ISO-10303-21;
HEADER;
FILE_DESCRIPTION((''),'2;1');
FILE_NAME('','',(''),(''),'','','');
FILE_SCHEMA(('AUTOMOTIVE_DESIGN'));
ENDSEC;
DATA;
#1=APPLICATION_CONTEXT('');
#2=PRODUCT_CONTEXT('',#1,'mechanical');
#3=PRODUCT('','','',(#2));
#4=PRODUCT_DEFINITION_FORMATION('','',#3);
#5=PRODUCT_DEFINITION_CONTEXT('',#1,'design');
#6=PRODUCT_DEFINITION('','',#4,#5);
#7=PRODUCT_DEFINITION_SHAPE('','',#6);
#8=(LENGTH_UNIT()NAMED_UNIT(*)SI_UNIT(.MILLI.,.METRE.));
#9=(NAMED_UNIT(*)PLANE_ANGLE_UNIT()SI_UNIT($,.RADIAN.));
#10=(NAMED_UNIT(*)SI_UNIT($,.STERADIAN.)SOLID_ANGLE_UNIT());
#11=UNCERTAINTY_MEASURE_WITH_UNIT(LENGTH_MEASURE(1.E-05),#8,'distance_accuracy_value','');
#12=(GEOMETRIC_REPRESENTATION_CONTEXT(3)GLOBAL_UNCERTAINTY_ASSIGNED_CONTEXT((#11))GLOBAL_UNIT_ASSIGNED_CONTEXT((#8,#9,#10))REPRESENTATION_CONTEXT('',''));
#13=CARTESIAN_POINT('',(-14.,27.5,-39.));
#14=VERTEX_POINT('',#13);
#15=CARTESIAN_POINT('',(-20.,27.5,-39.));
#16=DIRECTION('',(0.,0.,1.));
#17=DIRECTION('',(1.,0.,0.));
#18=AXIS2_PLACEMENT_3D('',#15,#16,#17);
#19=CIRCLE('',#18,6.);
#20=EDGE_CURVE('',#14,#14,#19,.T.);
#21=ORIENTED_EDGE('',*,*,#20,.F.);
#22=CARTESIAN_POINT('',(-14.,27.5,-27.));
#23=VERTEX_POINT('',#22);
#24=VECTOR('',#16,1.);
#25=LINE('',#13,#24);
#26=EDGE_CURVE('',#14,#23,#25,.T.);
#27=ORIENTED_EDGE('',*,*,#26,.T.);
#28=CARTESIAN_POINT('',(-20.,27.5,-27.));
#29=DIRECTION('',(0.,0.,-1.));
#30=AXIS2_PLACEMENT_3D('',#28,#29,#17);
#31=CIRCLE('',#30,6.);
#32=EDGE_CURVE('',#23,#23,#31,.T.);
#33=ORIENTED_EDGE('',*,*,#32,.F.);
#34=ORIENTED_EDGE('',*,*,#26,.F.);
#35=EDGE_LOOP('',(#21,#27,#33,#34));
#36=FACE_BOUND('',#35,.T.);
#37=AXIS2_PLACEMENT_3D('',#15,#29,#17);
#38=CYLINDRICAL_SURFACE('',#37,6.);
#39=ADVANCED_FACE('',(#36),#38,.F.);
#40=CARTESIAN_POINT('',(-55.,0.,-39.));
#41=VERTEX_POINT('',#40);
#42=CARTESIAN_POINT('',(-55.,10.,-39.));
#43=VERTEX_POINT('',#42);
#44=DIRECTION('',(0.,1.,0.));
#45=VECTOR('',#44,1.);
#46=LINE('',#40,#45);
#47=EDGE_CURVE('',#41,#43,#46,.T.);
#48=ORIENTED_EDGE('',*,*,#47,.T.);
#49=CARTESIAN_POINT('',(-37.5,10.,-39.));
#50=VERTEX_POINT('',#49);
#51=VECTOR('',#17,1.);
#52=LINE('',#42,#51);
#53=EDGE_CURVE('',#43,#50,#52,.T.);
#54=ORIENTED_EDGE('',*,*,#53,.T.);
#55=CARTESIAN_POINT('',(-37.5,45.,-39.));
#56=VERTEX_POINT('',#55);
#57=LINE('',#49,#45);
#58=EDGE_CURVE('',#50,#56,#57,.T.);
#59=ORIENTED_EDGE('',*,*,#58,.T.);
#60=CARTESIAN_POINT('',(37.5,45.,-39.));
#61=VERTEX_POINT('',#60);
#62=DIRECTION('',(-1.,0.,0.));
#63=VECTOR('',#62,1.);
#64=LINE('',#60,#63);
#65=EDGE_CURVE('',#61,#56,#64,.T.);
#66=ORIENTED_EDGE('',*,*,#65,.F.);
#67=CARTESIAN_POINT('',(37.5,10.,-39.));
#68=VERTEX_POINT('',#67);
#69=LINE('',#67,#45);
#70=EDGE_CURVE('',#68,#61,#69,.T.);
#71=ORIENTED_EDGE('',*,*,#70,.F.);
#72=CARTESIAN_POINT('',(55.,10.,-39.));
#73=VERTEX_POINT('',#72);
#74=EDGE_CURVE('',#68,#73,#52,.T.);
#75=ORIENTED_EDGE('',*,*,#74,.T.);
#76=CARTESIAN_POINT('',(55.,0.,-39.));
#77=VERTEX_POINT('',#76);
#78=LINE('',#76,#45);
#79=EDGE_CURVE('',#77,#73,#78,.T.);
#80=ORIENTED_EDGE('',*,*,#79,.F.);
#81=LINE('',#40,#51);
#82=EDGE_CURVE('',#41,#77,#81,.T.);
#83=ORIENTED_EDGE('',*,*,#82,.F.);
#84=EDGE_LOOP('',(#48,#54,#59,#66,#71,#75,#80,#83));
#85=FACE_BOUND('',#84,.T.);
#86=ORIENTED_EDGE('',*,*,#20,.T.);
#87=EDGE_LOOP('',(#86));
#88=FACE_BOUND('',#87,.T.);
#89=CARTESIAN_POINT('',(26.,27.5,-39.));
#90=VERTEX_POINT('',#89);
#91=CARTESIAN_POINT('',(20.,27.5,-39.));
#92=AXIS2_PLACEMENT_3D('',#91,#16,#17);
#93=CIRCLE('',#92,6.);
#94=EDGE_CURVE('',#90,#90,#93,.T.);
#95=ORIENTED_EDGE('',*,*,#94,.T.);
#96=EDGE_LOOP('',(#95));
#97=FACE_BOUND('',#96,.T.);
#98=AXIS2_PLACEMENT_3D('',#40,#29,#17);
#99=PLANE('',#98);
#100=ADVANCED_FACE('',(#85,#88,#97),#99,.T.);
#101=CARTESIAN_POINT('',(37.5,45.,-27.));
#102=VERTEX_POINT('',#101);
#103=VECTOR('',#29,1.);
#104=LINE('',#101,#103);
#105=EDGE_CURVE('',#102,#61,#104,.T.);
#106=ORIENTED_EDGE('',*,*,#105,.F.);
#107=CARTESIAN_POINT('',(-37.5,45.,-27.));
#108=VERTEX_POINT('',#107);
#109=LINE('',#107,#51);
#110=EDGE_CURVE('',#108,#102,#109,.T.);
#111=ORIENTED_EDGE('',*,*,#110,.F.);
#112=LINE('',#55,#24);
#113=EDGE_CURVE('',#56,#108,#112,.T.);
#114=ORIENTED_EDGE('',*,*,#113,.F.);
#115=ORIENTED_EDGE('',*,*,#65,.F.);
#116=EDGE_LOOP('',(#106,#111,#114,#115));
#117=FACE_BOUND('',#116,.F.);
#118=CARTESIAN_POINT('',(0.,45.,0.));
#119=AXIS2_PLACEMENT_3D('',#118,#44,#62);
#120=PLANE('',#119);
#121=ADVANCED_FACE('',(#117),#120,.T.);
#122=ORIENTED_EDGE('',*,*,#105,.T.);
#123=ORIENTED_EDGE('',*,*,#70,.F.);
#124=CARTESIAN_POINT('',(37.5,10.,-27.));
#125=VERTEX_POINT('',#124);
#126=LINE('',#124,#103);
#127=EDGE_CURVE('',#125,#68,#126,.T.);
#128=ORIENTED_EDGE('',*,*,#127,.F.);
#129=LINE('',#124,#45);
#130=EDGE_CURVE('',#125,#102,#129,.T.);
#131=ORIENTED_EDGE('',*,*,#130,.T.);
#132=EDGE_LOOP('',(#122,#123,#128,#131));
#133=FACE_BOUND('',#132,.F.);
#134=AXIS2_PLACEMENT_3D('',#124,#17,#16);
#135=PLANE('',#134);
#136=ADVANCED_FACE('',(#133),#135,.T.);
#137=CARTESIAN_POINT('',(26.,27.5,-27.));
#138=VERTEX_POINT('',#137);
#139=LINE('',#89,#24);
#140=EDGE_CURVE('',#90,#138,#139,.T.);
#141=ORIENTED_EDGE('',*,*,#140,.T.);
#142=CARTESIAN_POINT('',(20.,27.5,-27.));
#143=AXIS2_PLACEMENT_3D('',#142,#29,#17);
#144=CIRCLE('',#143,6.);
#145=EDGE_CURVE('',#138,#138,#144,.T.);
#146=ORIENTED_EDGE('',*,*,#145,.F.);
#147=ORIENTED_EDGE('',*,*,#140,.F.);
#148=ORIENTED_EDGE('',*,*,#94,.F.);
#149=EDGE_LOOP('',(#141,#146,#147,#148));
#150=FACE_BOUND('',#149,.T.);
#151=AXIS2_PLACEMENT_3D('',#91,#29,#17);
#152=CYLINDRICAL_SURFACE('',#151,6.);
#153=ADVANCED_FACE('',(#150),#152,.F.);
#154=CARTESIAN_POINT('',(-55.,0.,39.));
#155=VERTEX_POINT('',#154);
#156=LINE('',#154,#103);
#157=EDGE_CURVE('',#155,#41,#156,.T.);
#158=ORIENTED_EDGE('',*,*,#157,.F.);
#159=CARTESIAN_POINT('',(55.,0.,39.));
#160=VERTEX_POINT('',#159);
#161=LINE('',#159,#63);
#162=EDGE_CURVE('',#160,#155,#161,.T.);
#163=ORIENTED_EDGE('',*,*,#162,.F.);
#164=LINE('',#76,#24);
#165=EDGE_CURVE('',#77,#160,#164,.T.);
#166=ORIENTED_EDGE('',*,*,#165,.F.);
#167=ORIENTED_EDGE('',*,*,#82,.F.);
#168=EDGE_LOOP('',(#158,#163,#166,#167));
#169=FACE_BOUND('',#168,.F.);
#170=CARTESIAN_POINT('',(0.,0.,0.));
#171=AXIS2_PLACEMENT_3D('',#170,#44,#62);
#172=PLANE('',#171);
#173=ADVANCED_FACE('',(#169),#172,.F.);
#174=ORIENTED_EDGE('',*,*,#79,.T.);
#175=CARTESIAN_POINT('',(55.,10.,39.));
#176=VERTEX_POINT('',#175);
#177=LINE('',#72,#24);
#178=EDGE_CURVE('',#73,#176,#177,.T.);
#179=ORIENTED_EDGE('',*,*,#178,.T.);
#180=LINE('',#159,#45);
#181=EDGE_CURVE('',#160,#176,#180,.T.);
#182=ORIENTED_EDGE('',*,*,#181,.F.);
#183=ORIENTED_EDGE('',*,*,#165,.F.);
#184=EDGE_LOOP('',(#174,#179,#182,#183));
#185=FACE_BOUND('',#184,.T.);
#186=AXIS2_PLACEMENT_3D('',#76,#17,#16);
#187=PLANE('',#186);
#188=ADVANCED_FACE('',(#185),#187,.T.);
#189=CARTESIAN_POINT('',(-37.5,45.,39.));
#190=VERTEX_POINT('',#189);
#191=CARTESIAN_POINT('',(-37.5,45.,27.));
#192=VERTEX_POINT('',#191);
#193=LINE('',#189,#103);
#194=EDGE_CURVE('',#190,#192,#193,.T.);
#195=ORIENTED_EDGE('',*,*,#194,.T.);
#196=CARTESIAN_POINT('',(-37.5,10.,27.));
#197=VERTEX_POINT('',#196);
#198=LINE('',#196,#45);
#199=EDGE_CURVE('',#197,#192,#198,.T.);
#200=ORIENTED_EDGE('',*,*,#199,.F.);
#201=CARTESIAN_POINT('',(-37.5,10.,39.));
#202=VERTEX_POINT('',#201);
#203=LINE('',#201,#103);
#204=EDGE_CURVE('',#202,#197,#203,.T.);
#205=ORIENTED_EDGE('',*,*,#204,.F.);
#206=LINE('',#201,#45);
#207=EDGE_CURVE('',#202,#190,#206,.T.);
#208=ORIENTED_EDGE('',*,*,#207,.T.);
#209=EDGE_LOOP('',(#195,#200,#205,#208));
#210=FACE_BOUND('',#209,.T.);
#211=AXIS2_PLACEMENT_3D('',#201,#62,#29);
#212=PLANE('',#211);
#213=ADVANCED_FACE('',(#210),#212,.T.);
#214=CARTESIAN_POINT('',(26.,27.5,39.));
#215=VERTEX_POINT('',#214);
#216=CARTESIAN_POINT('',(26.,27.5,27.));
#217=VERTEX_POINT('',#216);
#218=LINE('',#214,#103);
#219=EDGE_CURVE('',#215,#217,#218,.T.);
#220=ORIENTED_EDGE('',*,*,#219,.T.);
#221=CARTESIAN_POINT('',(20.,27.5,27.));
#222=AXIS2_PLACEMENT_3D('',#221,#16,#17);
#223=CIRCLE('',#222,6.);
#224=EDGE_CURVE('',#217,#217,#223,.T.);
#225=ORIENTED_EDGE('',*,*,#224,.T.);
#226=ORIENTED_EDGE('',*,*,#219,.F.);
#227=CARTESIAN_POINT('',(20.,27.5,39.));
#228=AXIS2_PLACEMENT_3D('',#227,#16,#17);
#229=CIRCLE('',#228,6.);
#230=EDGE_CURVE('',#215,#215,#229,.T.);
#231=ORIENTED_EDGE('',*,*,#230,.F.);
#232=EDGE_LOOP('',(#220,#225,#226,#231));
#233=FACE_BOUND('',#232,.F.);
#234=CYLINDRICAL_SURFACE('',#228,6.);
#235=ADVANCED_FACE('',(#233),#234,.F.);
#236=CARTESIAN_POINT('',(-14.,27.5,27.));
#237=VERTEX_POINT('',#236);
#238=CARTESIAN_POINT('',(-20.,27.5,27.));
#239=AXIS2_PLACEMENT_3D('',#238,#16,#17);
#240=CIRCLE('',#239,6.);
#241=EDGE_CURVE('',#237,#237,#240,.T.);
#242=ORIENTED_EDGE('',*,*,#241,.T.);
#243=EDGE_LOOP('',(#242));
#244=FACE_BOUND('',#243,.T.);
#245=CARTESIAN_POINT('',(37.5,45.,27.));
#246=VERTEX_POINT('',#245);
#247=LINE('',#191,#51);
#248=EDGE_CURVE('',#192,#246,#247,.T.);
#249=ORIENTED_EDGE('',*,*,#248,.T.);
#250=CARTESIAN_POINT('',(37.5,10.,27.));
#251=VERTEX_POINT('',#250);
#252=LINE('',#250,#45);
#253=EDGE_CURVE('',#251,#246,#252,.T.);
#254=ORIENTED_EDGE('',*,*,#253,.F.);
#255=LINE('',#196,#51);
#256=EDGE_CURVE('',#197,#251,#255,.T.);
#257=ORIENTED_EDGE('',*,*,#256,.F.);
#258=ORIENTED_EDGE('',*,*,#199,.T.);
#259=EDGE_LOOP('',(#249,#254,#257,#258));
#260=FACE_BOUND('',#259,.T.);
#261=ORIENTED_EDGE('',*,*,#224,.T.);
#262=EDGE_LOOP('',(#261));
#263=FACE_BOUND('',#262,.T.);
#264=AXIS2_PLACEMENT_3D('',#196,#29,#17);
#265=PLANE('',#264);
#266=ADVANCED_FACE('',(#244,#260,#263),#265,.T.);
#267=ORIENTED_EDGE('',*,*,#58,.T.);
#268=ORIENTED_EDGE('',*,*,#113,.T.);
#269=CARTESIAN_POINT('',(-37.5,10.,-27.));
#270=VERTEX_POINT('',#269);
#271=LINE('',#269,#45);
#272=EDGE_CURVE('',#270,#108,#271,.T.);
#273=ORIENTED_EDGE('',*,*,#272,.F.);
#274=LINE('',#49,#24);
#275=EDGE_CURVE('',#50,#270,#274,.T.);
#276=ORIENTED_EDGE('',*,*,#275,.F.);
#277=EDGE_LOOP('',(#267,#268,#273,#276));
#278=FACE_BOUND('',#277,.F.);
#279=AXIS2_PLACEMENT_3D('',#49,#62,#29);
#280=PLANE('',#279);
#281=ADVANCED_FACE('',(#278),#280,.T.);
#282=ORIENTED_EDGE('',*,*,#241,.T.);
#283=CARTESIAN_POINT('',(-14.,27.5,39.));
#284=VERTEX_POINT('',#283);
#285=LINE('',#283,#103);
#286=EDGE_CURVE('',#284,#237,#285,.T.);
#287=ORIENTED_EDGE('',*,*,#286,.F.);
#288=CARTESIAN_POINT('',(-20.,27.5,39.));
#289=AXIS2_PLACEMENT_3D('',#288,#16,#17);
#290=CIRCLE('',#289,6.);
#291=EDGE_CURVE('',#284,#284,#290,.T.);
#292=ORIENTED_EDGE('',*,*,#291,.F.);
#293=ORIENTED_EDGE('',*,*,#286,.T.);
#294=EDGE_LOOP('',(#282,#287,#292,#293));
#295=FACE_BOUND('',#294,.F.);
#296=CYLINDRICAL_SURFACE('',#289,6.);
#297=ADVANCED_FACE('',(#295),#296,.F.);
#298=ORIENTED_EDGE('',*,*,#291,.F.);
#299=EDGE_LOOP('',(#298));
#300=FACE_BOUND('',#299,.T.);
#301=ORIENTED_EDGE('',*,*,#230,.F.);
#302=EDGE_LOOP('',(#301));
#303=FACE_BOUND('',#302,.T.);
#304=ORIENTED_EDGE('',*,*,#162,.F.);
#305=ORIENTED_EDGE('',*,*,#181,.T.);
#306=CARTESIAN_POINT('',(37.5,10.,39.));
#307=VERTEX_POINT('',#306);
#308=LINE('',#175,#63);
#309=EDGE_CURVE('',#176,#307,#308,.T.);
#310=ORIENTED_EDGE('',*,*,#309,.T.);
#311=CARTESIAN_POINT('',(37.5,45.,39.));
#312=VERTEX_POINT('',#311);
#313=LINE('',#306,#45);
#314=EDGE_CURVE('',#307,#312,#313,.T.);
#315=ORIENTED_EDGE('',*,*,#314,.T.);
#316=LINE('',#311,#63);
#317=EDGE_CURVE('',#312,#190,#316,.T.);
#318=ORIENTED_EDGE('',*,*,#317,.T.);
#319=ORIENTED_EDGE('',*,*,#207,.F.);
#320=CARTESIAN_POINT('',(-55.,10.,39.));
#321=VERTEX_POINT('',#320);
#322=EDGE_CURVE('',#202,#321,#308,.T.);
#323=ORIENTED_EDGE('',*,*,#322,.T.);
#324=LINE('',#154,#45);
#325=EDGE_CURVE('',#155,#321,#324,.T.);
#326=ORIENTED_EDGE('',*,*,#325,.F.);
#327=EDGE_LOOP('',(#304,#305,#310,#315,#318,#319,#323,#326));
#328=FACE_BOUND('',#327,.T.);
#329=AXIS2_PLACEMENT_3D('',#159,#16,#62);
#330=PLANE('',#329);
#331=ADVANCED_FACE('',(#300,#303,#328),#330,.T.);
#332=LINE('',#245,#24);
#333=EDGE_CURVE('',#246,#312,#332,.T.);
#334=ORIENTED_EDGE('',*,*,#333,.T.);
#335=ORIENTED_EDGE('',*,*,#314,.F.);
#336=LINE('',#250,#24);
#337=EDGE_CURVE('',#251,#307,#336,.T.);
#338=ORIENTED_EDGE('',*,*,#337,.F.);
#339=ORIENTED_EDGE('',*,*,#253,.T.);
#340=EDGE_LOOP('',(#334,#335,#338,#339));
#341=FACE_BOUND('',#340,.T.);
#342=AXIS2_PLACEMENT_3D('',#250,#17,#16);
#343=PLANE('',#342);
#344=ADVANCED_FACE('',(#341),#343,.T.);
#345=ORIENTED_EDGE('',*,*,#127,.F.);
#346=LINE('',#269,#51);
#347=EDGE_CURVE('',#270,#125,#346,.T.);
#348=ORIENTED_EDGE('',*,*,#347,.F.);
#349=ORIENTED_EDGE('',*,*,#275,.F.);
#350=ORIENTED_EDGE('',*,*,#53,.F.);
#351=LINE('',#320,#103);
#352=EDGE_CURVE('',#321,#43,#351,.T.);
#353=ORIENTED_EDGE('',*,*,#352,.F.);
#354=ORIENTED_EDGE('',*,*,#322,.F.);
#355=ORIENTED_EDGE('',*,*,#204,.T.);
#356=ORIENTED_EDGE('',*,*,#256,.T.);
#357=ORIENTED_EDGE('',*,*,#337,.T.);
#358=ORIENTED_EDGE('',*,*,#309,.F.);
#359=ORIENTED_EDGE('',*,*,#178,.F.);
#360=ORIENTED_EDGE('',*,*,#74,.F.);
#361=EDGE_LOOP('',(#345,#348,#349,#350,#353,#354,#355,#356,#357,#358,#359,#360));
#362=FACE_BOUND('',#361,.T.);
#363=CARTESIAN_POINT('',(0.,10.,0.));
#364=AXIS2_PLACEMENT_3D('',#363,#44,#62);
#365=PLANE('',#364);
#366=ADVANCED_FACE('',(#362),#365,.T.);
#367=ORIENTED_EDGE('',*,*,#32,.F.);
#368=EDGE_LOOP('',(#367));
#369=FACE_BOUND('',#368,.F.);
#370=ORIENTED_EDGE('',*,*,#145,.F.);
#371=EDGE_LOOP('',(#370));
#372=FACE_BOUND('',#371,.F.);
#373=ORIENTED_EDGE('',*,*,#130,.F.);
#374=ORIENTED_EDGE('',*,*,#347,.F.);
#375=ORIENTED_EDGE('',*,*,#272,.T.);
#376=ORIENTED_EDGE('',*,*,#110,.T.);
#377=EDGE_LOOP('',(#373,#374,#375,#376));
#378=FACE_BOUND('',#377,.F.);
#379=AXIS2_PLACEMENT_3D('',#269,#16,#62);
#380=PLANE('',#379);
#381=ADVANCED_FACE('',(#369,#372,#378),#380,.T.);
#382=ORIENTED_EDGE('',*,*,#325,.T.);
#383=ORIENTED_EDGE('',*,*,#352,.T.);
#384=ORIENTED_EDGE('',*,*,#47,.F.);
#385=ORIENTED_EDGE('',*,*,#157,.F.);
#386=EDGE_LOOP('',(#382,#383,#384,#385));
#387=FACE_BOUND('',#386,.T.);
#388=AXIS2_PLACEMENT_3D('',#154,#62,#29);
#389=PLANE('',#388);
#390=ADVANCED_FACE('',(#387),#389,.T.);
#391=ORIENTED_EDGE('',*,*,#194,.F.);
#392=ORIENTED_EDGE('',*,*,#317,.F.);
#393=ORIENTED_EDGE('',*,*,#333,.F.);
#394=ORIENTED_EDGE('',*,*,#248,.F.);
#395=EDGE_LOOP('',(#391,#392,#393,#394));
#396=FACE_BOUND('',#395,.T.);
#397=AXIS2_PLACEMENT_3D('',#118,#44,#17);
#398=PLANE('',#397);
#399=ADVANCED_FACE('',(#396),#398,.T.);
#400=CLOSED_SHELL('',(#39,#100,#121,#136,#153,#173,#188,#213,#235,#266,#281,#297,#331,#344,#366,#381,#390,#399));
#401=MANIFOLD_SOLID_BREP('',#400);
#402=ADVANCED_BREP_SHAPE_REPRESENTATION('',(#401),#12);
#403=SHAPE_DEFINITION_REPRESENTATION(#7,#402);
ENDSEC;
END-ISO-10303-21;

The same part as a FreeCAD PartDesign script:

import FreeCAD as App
import Part
import Sketcher
Q = App.Units.Quantity


def add_polygon(sketch, points):
    """Adds a closed chain of lines whose ends are joined by coincident constraints."""
    first, n = sketch.GeometryCount, len(points)
    for a, b in zip(points, points[1:] + points[:1]):
        sketch.addGeometry(Part.LineSegment(App.Vector(*a, 0), App.Vector(*b, 0)), False)
    for i in range(n):
        sketch.addConstraint(Sketcher.Constraint("Coincident", first + i, 2, first + (i + 1) % n, 1))

doc = App.newDocument("Part")
params = doc.addObject("Spreadsheet::Sheet", "Params")
for row, (alias, value) in enumerate([
    ("sketch1_width", "110 mm"),
    ("sketch1_height", "78 mm"),
    ("pad1_length", "10 mm"),
    ("sketch2_width", "75 mm"),
    ("sketch2_height", "12 mm"),
    ("pad2_length", "35 mm"),
    ("sketch3_diameter", "12 mm"),
    ("pocket1_length", "80 mm"),
], start=1):
    params.set(f"A{row}", alias)
    params.set(f"B{row}", "=" + value)
    params.setAlias(f"B{row}", alias)

body = doc.addObject("PartDesign::Body", "Body")

# Sketch on XZ plane
sketch1 = body.newObject("Sketcher::SketchObject", "Sketch")
sketch1.AttachmentSupport = (doc.getObject("XZ_Plane"), [""])
sketch1.MapMode = "FlatFace"
add_polygon(sketch1, [(-55, -39), (-55, 39), (55, 39), (55, -39)])  # lines 0-3
sketch1.addConstraint(Sketcher.Constraint("Vertical", 0))
sketch1.addConstraint(Sketcher.Constraint("Horizontal", 1))
sketch1.addConstraint(Sketcher.Constraint("Vertical", 2))
sketch1.addConstraint(Sketcher.Constraint("Horizontal", 3))
sketch1.addConstraint(Sketcher.Constraint("Symmetric", 0, 2, 2, 2, -1, 1))
sketch1.addConstraint(Sketcher.Constraint("DistanceX", 1, 1, 1, 2, Q("110 mm")))
sketch1.addConstraint(Sketcher.Constraint("DistanceY", 0, 1, 0, 2, Q("78 mm")))
sketch1.setExpression("Constraints[9]", "Params.sketch1_width")
sketch1.setExpression("Constraints[10]", "Params.sketch1_height")
pad1 = body.newObject("PartDesign::Pad", "Pad")
pad1.Profile = sketch1
pad1.setExpression("Length", "Params.pad1_length")
pad1.Reversed = True

# Sketch on XZ plane
sketch2 = body.newObject("Sketcher::SketchObject", "Sketch001")
sketch2.AttachmentSupport = (doc.getObject("XZ_Plane"), [""])
sketch2.MapMode = "FlatFace"
sketch2.AttachmentOffset = App.Placement(App.Vector(0, 0, -10), App.Rotation())
add_polygon(sketch2, [(-37.5, 27), (-37.5, 39), (37.5, 39), (37.5, 27)])  # lines 0-3
sketch2.addConstraint(Sketcher.Constraint("Vertical", 0))
sketch2.addConstraint(Sketcher.Constraint("Horizontal", 1))
sketch2.addConstraint(Sketcher.Constraint("Vertical", 2))
sketch2.addConstraint(Sketcher.Constraint("Horizontal", 3))
sketch2.addConstraint(Sketcher.Constraint("DistanceX", 1, 1, 1, 2, Q("75 mm")))
sketch2.addConstraint(Sketcher.Constraint("DistanceY", 0, 1, 0, 2, Q("12 mm")))
sketch2.addConstraint(Sketcher.Constraint("DistanceX", 0, 2, -1, 1, Q("37.5 mm")))
sketch2.addConstraint(Sketcher.Constraint("DistanceY", -1, 1, 0, 2, Q("39 mm")))
sketch2.setExpression("Constraints[8]", "Params.sketch2_width")
sketch2.setExpression("Constraints[9]", "Params.sketch2_height")
pad2 = body.newObject("PartDesign::Pad", "Pad001")
pad2.Profile = sketch2
pad2.setExpression("Length", "Params.pad2_length")
pad2.Reversed = True

# Sketch on XY plane
sketch3 = body.newObject("Sketcher::SketchObject", "Sketch002")
sketch3.AttachmentSupport = (doc.getObject("XY_Plane"), [""])
sketch3.MapMode = "FlatFace"
sketch3.AttachmentOffset = App.Placement(App.Vector(0, 0, 39), App.Rotation())
sketch3.addGeometry(Part.Circle(App.Vector(-20, 27.5, 0), App.Vector(0, 0, 1), 6), False)
sketch3.addGeometry(Part.Circle(App.Vector(20, 27.5, 0), App.Vector(0, 0, 1), 6), False)
sketch3.addConstraint(Sketcher.Constraint("Equal", 0, 1))
sketch3.addConstraint(Sketcher.Constraint("Symmetric", 0, 3, 1, 3, -2))
sketch3.addConstraint(Sketcher.Constraint("Diameter", 0, Q("12 mm")))
sketch3.addConstraint(Sketcher.Constraint("DistanceX", 0, 3, -1, 1, Q("20 mm")))
sketch3.addConstraint(Sketcher.Constraint("DistanceY", -1, 1, 0, 3, Q("27.5 mm")))
sketch3.setExpression("Constraints[2]", "Params.sketch3_diameter")
pocket1 = body.newObject("PartDesign::Pocket", "Pocket")
pocket1.Profile = sketch3
pocket1.setExpression("Length", "Params.pocket1_length")
doc.recompute()

mirrored = body.newObject("PartDesign::Mirrored", "Mirrored")
mirrored.Originals = [pad2, pocket1]
mirrored.MirrorPlane = (doc.getObject("XY_Plane"), [""])
body.Tip = mirrored

doc.recompute()
